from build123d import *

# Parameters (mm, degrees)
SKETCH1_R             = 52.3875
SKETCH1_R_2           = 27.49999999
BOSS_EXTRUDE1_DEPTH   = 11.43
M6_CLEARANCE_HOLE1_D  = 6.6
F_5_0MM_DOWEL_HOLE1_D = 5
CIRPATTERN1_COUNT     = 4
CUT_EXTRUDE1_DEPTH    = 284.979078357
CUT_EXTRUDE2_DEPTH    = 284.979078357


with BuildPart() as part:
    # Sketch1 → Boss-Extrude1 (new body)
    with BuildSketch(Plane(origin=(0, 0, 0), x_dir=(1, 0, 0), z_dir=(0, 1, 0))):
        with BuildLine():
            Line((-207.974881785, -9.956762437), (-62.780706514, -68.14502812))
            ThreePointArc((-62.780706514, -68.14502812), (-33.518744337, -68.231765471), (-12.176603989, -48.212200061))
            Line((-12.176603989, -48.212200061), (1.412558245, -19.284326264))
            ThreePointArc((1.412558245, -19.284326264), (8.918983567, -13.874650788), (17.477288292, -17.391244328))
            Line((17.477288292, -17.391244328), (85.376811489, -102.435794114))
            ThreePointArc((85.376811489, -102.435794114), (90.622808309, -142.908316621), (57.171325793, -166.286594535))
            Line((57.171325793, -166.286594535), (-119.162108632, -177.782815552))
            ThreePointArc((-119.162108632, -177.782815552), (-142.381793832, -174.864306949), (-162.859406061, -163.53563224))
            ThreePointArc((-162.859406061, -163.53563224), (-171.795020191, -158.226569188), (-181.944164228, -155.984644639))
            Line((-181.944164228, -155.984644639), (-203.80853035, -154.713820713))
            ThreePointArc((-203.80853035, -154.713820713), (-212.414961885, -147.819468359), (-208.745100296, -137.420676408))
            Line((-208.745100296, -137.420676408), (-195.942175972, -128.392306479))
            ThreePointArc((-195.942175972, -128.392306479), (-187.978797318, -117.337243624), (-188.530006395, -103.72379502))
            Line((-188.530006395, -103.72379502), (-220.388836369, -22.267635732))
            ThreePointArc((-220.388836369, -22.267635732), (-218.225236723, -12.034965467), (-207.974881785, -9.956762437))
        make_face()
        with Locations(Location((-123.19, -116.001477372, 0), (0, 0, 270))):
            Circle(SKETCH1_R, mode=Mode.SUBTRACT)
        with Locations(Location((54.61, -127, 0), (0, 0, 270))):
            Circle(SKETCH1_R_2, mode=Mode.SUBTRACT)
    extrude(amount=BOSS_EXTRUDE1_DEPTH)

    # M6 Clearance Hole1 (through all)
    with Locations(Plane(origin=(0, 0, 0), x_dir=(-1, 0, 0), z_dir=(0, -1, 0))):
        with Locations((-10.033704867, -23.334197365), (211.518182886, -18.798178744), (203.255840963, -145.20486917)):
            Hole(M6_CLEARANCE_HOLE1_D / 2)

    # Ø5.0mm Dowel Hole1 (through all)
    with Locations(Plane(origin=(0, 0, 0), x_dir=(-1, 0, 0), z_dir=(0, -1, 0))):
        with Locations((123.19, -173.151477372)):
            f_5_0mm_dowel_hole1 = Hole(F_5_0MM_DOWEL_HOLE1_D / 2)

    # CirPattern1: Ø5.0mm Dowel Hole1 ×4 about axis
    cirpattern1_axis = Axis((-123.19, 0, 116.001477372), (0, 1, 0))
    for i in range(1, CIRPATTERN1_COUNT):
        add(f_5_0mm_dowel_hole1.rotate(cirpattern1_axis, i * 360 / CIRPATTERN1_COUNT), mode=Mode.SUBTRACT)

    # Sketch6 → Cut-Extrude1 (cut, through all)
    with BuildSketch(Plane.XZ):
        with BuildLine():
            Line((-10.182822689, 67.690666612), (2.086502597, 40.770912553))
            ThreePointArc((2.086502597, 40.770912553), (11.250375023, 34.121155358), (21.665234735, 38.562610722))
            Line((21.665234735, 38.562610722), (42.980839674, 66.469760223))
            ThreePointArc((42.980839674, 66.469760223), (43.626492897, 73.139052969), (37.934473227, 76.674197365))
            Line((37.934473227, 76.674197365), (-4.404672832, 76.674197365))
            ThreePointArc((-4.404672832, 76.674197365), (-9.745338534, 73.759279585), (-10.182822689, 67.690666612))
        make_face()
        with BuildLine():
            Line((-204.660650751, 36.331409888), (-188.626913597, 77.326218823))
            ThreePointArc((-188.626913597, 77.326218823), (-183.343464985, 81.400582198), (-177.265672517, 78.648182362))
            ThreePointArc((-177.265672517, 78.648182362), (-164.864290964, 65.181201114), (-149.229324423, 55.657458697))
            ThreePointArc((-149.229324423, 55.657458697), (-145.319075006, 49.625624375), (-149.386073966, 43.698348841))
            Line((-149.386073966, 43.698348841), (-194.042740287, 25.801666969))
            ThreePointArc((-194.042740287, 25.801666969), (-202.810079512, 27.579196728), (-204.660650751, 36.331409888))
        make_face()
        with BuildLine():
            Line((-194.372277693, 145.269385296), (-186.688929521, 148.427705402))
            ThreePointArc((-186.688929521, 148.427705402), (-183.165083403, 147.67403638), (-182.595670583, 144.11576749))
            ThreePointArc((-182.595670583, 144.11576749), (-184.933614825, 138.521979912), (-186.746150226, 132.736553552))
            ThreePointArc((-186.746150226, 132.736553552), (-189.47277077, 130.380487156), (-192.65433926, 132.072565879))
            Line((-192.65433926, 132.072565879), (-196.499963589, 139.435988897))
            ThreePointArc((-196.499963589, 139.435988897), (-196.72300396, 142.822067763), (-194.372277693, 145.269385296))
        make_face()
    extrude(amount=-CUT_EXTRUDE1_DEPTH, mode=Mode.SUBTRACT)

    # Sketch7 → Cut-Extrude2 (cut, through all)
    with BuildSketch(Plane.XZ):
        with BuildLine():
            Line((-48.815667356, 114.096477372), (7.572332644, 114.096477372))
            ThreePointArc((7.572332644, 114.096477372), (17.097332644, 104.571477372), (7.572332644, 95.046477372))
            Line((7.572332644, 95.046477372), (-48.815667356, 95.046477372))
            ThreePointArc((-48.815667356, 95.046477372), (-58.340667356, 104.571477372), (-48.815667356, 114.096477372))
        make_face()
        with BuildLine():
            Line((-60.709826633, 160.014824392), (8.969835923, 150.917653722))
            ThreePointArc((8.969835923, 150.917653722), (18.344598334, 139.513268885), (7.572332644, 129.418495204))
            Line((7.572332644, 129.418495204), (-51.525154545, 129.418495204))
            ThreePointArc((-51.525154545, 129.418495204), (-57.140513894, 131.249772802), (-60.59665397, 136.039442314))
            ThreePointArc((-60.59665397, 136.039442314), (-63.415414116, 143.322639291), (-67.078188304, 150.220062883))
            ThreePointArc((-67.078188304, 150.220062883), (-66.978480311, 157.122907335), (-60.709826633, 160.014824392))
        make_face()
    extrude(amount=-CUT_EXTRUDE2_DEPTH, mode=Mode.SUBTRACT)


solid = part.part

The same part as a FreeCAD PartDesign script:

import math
import FreeCAD as App
import Part
import Sketcher

V = App.Vector
Q = App.Units.Quantity

doc = App.newDocument("Part")
body = doc.addObject("PartDesign::Body", "Body")

sketch1 = body.newObject("Sketcher::SketchObject", "Sketch")
sketch1.AttachmentSupport = (doc.getObject("XZ_Plane"), [""])
sketch1.MapMode = "FlatFace"
sketch1.addGeometry([
    Part.LineSegment(V(-62.780707, 68.145028, 0), V(-207.974882, 9.956762, 0)),
    Part.ArcOfCircle(Part.Circle(V(-211.518183, 18.798179, 0), V(0, 0, 1), 9.525), math.radians(158.638723), math.radians(291.839023)),
    Part.LineSegment(V(-220.388836, 22.267636, 0), V(-188.530006, 103.723795, 0)),
    Part.ArcOfCircle(Part.Circle(V(-207.974882, 111.329002, 0), V(0, 0, 1), 20.879233), math.radians(-21.361277), math.radians(54.809264)),
    Part.LineSegment(V(-195.942176, 128.392306, 0), V(-208.7451, 137.420676, 0)),
    Part.ArcOfCircle(Part.Circle(V(-203.255841, 145.204869, 0), V(0, 0, 1), 9.525), math.radians(93.326464), math.radians(234.809264)),
    Part.LineSegment(V(-203.80853, 154.713821, 0), V(-181.944164, 155.984645, 0)),
    Part.ArcOfCircle(Part.Circle(V(-183.844593, 188.681286, 0), V(0, 0, 1), 32.751824), math.radians(-86.673536), math.radians(-50.153472)),
    Part.ArcOfCircle(Part.Circle(V(-123.19, 116.001477, 0), V(0, 0, 1), 61.9125), math.radians(86.269828), math.radians(129.846528)),
    Part.LineSegment(V(-119.162109, 177.782816, 0), V(57.171326, 166.286595, 0)),
    Part.ArcOfCircle(Part.Circle(V(54.61, 127, 0), V(0, 0, 1), 39.37), math.radians(-38.603848), math.radians(86.269828)),
    Part.LineSegment(V(85.376811, 102.435794, 0), V(17.477288, 17.391244, 0)),
    Part.ArcOfCircle(Part.Circle(V(10.033705, 23.334197, 0), V(0, 0, 1), 9.525), math.radians(-154.837733), math.radians(-38.603848)),
    Part.LineSegment(V(1.412558, 19.284326, 0), V(-12.176604, 48.2122, 0)),
    Part.ArcOfCircle(Part.Circle(V(-48.040574, 31.364736, 0), V(0, 0, 1), 39.624), math.radians(25.162267), math.radians(111.839023)),
    Part.Circle(V(54.61, 127, 0), V(0, 0, 1), 27.5),
    Part.Circle(V(-123.19, 116.001477, 0), V(0, 0, 1), 52.3875),
], False)
sketch1.addConstraint([
    Sketcher.Constraint("Coincident", 0, 2, 1, 2),
    Sketcher.Constraint("Coincident", 1, 1, 2, 1),
    Sketcher.Constraint("Coincident", 2, 2, 3, 1),
    Sketcher.Constraint("Coincident", 3, 2, 4, 1),
    Sketcher.Constraint("Coincident", 4, 2, 5, 2),
    Sketcher.Constraint("Coincident", 5, 1, 6, 1),
    Sketcher.Constraint("Coincident", 6, 2, 7, 1),
    Sketcher.Constraint("Coincident", 7, 2, 8, 2),
    Sketcher.Constraint("Coincident", 8, 1, 9, 1),
    Sketcher.Constraint("Coincident", 9, 2, 10, 2),
    Sketcher.Constraint("Coincident", 10, 1, 11, 1),
    Sketcher.Constraint("Coincident", 11, 2, 12, 2),
    Sketcher.Constraint("Coincident", 12, 1, 13, 1),
    Sketcher.Constraint("Coincident", 13, 2, 14, 1),
    Sketcher.Constraint("Coincident", 14, 2, 0, 1),
    Sketcher.Constraint("Coincident", 15, 3, 10, 3),
    Sketcher.Constraint("Coincident", 16, 3, 8, 3),
    Sketcher.Constraint("Radius", 10, Q("1.55 in")),
    Sketcher.Constraint("Radius", 14, Q("1.56 in")),
    Sketcher.Constraint("Diameter", 16, Q("4.125 in")),
    Sketcher.Constraint("DistanceY", -1, 1, 10, 3, Q("5 in")),
    Sketcher.Constraint("Radius", 1, Q("0.375 in")),
    Sketcher.Constraint("Radius", 5, Q("0.375 in")),
    Sketcher.Constraint("Radius", 8, Q("2.4375 in")),
    Sketcher.Constraint("Radius", 12, Q("0.375 in")),
    Sketcher.Constraint("DistanceX", 8, 3, 10, 3, Q("7 in")),
    Sketcher.Constraint("Diameter", 15, Q("55 mm")),
    Sketcher.Constraint("DistanceX", 8, 3, -1, 1, Q("4.85 in")),
    Sketcher.Constraint("Radius", 3, Q("20.879233 mm")),
    Sketcher.Constraint("Radius", 7, Q("32.751824 mm")),
    Sketcher.Constraint("DistanceX", 1, 3, 3, 3, Q("0.1395 in")),
    Sketcher.Constraint("DistanceX", 1, 3, 0, 2, Q("0.1395 in")),
    Sketcher.Constraint("Distance", 2, Q("87.464798 mm")),
    Sketcher.Constraint("DistanceX", 4, 2, -1, 1, Q("208.7451 mm")),
    Sketcher.Constraint("DistanceY", -1, 1, 13, 2, Q("48.2122 mm")),
    Sketcher.Constraint("DistanceY", 1, 3, 8, 3, Q("97.203299 mm")),
    Sketcher.Constraint("DistanceX", 14, 3, 9, 2, Q("105.2119 mm")),
    Sketcher.Constraint("DistanceY", 10, 1, 9, 2, Q("63.8508 mm")),
    Sketcher.Constraint("DistanceY", 12, 1, 14, 2, Q("48.860702 mm")),
    Sketcher.Constraint("Distance", 0, Q("156.42002 mm")),
    Sketcher.Constraint("Distance", 4, Q("15.666089 mm")),
    Sketcher.Constraint("Distance", 9, Q("176.70779 mm")),
    Sketcher.Constraint("DistanceY", -1, 1, 1, 3, Q("18.798179 mm")),
    Sketcher.Constraint("DistanceX", 3, 3, -1, 1, Q("207.974882 mm")),
    Sketcher.Constraint("DistanceX", 5, 3, -1, 1, Q("203.255841 mm")),
    Sketcher.Constraint("DistanceY", -1, 1, 5, 3, Q("145.204869 mm")),
    Sketcher.Constraint("DistanceX", 5, 1, -1, 1, Q("203.80853 mm")),
    Sketcher.Constraint("DistanceX", 8, 1, -1, 1, Q("119.162109 mm")),
    Sketcher.Constraint("DistanceX", -1, 1, 11, 2, Q("17.477288 mm")),
    Sketcher.Constraint("DistanceX", -1, 1, 12, 1, Q("1.412558 mm")),
    Sketcher.Constraint("DistanceY", -1, 1, 14, 2, Q("68.145028 mm")),
    Sketcher.Constraint("DistanceX", 3, 3, 7, 3, Q("24.130289 mm")),
    Sketcher.Constraint("DistanceY", 12, 3, 8, 3, Q("92.66728 mm")),
    Sketcher.Constraint("DistanceY", 0, 2, 3, 3, Q("101.37224 mm")),
    Sketcher.Constraint("DistanceY", 1, 1, 16, 3, Q("93.733842 mm")),
    Sketcher.Constraint("DistanceX", 3, 2, 6, 2, Q("13.998012 mm")),
    Sketcher.Constraint("DistanceX", 6, 2, 7, 2, Q("19.084758 mm")),
])
pad1 = body.newObject("PartDesign::Pad", "Pad")
pad1.Profile = sketch1
pad1.Length = Q("0.45 in")
pad1.Reversed = True

sketch2 = body.newObject("Sketcher::SketchObject", "Sketch001")
sketch2.AttachmentSupport = (doc.getObject("XZ_Plane"), [""])
sketch2.MapMode = "FlatFace"
sketch2.addGeometry([
    Part.Circle(V(10, 23.3, 0), V(0, 0, 1), 3.3),
    Part.Circle(V(-211.5, 18.8, 0), V(0, 0, 1), 3.3),
    Part.Circle(V(-203.3, 145.2, 0), V(0, 0, 1), 3.3),
], False)
sketch2.addConstraint([
    Sketcher.Constraint("Equal", 0, 1),
    Sketcher.Constraint("Equal", 1, 2),
    Sketcher.Constraint("Diameter", 0, Q("6.6 mm")),
    Sketcher.Constraint("DistanceY", -1, 1, 1, 3, Q("18.798179 mm")),
    Sketcher.Constraint("DistanceX", 2, 3, -1, 1, Q("203.255841 mm")),
    Sketcher.Constraint("DistanceY", -1, 1, 2, 3, Q("145.204869 mm")),
    Sketcher.Constraint("DistanceY", 1, 3, 0, 3, Q("4.536019 mm")),
    Sketcher.Constraint("DistanceX", 1, 3, 2, 3, Q("8.262342 mm")),
    Sketcher.Constraint("DistanceX", -1, 1, 0, 3, Q("10.033705 mm")),
])
doc.recompute()
hole = body.newObject("PartDesign::Hole", "Hole")
hole.Profile = sketch2
hole.ThreadType = "None"
hole.Diameter = 6.6
hole.DepthType = "ThroughAll"

sketch3 = body.newObject("Sketcher::SketchObject", "Sketch002")
sketch3.AttachmentSupport = (doc.getObject("XZ_Plane"), [""])
sketch3.MapMode = "FlatFace"
sketch3.addGeometry(Part.Circle(V(-123.2, 173.2, 0), V(0, 0, 1), 2.5), False)
sketch3.addConstraint([
    Sketcher.Constraint("Diameter", 0, Q("5 mm")),
    Sketcher.Constraint("DistanceX", 0, 3, -1, 1, Q("4.85 in")),
    Sketcher.Constraint("DistanceY", -1, 1, 0, 3, Q("173.151477 mm")),
])
doc.recompute()
hole2 = body.newObject("PartDesign::Hole", "Hole001")
hole2.Profile = sketch3
hole2.ThreadType = "None"
hole2.Diameter = 5
hole2.DepthType = "ThroughAll"
doc.recompute()

datumline = body.newObject("PartDesign::Line", "DatumLine")
datumline.Placement = App.Placement(V(-123.19, 0, 116.001477), App.Rotation(V(0, 0, 1), V(0, 1, 0)))
polarpattern = body.newObject("PartDesign::PolarPattern", "PolarPattern")
polarpattern.Originals = [hole2]
polarpattern.Axis = (datumline, [""])
polarpattern.Angle = 360
polarpattern.Occurrences = 4
body.Tip = polarpattern

sketch4 = body.newObject("Sketcher::SketchObject", "Sketch003")
sketch4.AttachmentSupport = (doc.getObject("XZ_Plane"), [""])
sketch4.MapMode = "FlatFace"
sketch4.addGeometry([
    Part.LineSegment(V(-10.2, 67.7, 0), V(2.1, 40.8, 0)),
    Part.ArcOfCircle(Part.Circle(V(12.5, 45.5, 0), V(0, 0, 1), 11.5), math.radians(-155), math.radians(-37)),
    Part.LineSegment(V(21.7, 38.6, 0), V(43, 66.5, 0)),
    Part.ArcOfCircle(Part.Circle(V(37.9, 70.3, 0), V(0, 0, 1), 6.3), math.radians(-37), math.radians(90)),
    Part.LineSegment(V(37.9, 76.7, 0), V(-4.4, 76.7, 0)),
    Part.ArcOfCircle(Part.Circle(V(-4.4, 70.3, 0), V(0, 0, 1), 6.3), math.radians(90), math.radians(205)),
    Part.LineSegment(V(-188.6, 77.3, 0), V(-204.7, 36.3, 0)),
    Part.ArcOfCircle(Part.Circle(V(-197.1, 33.4, 0), V(0, 0, 1), 8.1), math.radians(159), math.radians(292)),
    Part.LineSegment(V(-194, 25.8, 0), V(-149.4, 43.7, 0)),
    Part.ArcOfCircle(Part.Circle(V(-151.8, 49.7, 0), V(0, 0, 1), 6.5), math.radians(-68), math.radians(67)),
    Part.ArcOfCircle(Part.Circle(V(-123.2, 116, 0), V(0, 0, 1), 65.7), math.radians(-145), math.radians(-113)),
    Part.ArcOfCircle(Part.Circle(V(-182.6, 75, 0), V(0, 0, 1), 6.5), math.radians(35), math.radians(159)),
    Part.LineSegment(V(-186.7, 148.4, 0), V(-194.4, 145.3, 0)),
    Part.ArcOfCircle(Part.Circle(V(-192.8, 141.4, 0), V(0, 0, 1), 4.2), math.radians(112), math.radians(208)),
    Part.LineSegment(V(-196.5, 139.4, 0), V(-192.7, 132.1, 0)),
    Part.ArcOfCircle(Part.Circle(V(-189.8, 133.5, 0), V(0, 0, 1), 3.2), math.radians(-152), math.radians(-15)),
    Part.ArcOfCircle(Part.Circle(V(-123.2, 116, 0), V(0, 0, 1), 65.7), math.radians(154.67), math.radians(165.25)),
    Part.ArcOfCircle(Part.Circle(V(-185.5, 145.5, 0), V(0, 0, 1), 3.2), math.radians(-25), math.radians(112)),
], False)
sketch4.addConstraint([
    Sketcher.Constraint("Tangent", 0, 2, 1, 1),
    Sketcher.Constraint("Tangent", 1, 2, 2, 1),
    Sketcher.Constraint("Tangent", 2, 2, 3, 1),
    Sketcher.Constraint("Tangent", 3, 2, 4, 1),
    Sketcher.Constraint("Tangent", 4, 2, 5, 1),
    Sketcher.Constraint("Tangent", 5, 2, 0, 1),
    Sketcher.Constraint("Tangent", 6, 2, 7, 1),
    Sketcher.Constraint("Tangent", 7, 2, 8, 1),
    Sketcher.Constraint("Tangent", 8, 2, 9, 1),
    Sketcher.Constraint("Tangent", 9, 2, 10, 2),
    Sketcher.Constraint("Tangent", 10, 1, 11, 1),
    Sketcher.Constraint("Tangent", 11, 2, 6, 1),
    Sketcher.Constraint("Tangent", 12, 2, 13, 1),
    Sketcher.Constraint("Tangent", 13, 2, 14, 1),
    Sketcher.Constraint("Tangent", 14, 2, 15, 1),
    Sketcher.Constraint("Tangent", 15, 2, 16, 2),
    Sketcher.Constraint("Tangent", 16, 1, 17, 1),
    Sketcher.Constraint("Tangent", 17, 2, 12, 1),
    Sketcher.Constraint("Horizontal", 4),
    Sketcher.Constraint("Coincident", 16, 3, 10, 3),
    Sketcher.Constraint("Equal", 3, 5),
    Sketcher.Constraint("Equal", 9, 11),
    Sketcher.Constraint("Equal", 10, 16),
    Sketcher.Constraint("Equal", 15, 17),
    Sketcher.Constraint("Equal", 12, 14),
    Sketcher.Constraint("Radius", 3, Q("0.25 in")),
    Sketcher.Constraint("Radius", 9, Q("0.255 in")),
    Sketcher.Constraint("Radius", 10, Q("2.5875 in")),
    Sketcher.Constraint("Radius", 15, Q("0.1255 in")),
    Sketcher.Constraint("DistanceX", 10, 3, -1, 1, Q("4.85 in")),
    Sketcher.Constraint("Radius", 7, Q("8.146928 mm")),
    Sketcher.Constraint("Radius", 13, Q("4.20323 mm")),
    Sketcher.Constraint("Radius", 1, Q("11.485497 mm")),
    Sketcher.Constraint("DistanceX", 7, 3, -1, 1, Q("197.073399 mm")),
    Sketcher.Constraint("DistanceX", 1, 3, 3, 3, Q("25.396802 mm")),
    Sketcher.Constraint("DistanceY", 7, 3, 9, 3, Q("16.3466 mm")),
    Sketcher.Constraint("DistanceY", 11, 3, 13, 3, Q("66.414799 mm")),
    Sketcher.Constraint("DistanceY", 16, 3, 17, 3, Q("29.477901 mm")),
    Sketcher.Constraint("DistanceY", 1, 2, 0, 2, Q("2.208302 mm")),
    Sketcher.Constraint("DistanceX", 10, 1, 8, 2, Q("27.879599 mm")),
    Sketcher.Constraint("DistanceY", 13, 3, 12, 2, Q("3.887598 mm")),
    Sketcher.Constraint("DistanceX", 12, 2, 15, 3, Q("4.543501 mm")),
    Sketcher.Constraint("Distance", 0, Q("29.58394 mm")),
    Sketcher.Constraint("DistanceX", -1, 1, 1, 3, Q("12.537672 mm")),
    Sketcher.Constraint("DistanceY", -1, 1, 9, 3, Q("49.710512 mm")),
    Sketcher.Constraint("DistanceY", -1, 1, 1, 2, Q("38.562611 mm")),
])
pocket1 = body.newObject("PartDesign::Pocket", "Pocket")
pocket1.Profile = sketch4
pocket1.Type = "ThroughAll"

sketch5 = body.newObject("Sketcher::SketchObject", "Sketch004")
sketch5.AttachmentSupport = (doc.getObject("XZ_Plane"), [""])
sketch5.MapMode = "FlatFace"
sketch5.addGeometry([
    Part.LineSegment(V(8, 114, 0), V(-49, 114, 0)),
    Part.ArcOfCircle(Part.Circle(V(-49, 105, 0), V(0, 0, 1), 10), math.radians(90), math.radians(270)),
    Part.LineSegment(V(-49, 95, 0), V(8, 95, 0)),
    Part.ArcOfCircle(Part.Circle(V(8, 105, 0), V(0, 0, 1), 10), math.radians(-90), math.radians(90)),
    Part.LineSegment(V(9, 151, 0), V(-61, 160, 0)),
    Part.ArcOfCircle(Part.Circle(V(-62, 154, 0), V(0, 0, 1), 6), math.radians(83), math.radians(211)),
    Part.ArcOfCircle(Part.Circle(V(-123, 116, 0), V(0, 0, 1), 66), math.radians(17.75), math.radians(31.38)),
    Part.ArcOfCircle(Part.Circle(V(-52, 139, 0), V(0, 0, 1), 10), math.radians(-162), math.radians(-90)),
    Part.LineSegment(V(-52, 129, 0), V(8, 129, 0)),
    Part.ArcOfCircle(Part.Circle(V(8, 140, 0), V(0, 0, 1), 11), math.radians(-90), math.radians(83)),
], False)
sketch5.addConstraint([
    Sketcher.Constraint("Tangent", 0, 2, 1, 1),
    Sketcher.Constraint("Tangent", 1, 2, 2, 1),
    Sketcher.Constraint("Tangent", 2, 2, 3, 1),
    Sketcher.Constraint("Tangent", 3, 2, 0, 1),
    Sketcher.Constraint("Tangent", 4, 2, 5, 1),
    Sketcher.Constraint("Tangent", 5, 2, 6, 2),
    Sketcher.Constraint("Tangent", 6, 1, 7, 1),
    Sketcher.Constraint("Tangent", 7, 2, 8, 1),
    Sketcher.Constraint("Tangent", 8, 2, 9, 1),
    Sketcher.Constraint("Tangent", 9, 2, 4, 1),
    Sketcher.Constraint("Horizontal", 0),
    Sketcher.Constraint("Horizontal", 2),
    Sketcher.Constraint("Horizontal", 8),
    Sketcher.Constraint("Equal", 3, 7),
    Sketcher.Constraint("Vertical", 3, 3, 9, 3),
    Sketcher.Constraint("Radius", 1, Q("0.375 in")),
    Sketcher.Constraint("Radius", 5, Q("0.255 in")),
    Sketcher.Constraint("Radius", 9, Q("0.425 in")),
    Sketcher.Constraint("DistanceX", 0, 2, 0, 1, Q("2.22 in")),
    Sketcher.Constraint("Radius", 6, Q("2.5875 in")),
    Sketcher.Constraint("DistanceX", 6, 3, -1, 1, Q("4.85 in")),
    Sketcher.Constraint("DistanceY", 1, 3, 6, 3, Q("0.45 in")),
    Sketcher.Constraint("DistanceX", 5, 3, 4, 2, Q("0.838502 mm")),
    Sketcher.Constraint("DistanceX", 8, 1, 8, 2, Q("59.097487 mm")),
    Sketcher.Constraint("DistanceX", 5, 3, -1, 1, Q("61.548329 mm")),
    Sketcher.Constraint("DistanceY", -1, 1, 5, 3, Q("153.592329 mm")),
])
pocket2 = body.newObject("PartDesign::Pocket", "Pocket001")
pocket2.Profile = sketch5
pocket2.Type = "ThroughAll"

doc.recompute()
